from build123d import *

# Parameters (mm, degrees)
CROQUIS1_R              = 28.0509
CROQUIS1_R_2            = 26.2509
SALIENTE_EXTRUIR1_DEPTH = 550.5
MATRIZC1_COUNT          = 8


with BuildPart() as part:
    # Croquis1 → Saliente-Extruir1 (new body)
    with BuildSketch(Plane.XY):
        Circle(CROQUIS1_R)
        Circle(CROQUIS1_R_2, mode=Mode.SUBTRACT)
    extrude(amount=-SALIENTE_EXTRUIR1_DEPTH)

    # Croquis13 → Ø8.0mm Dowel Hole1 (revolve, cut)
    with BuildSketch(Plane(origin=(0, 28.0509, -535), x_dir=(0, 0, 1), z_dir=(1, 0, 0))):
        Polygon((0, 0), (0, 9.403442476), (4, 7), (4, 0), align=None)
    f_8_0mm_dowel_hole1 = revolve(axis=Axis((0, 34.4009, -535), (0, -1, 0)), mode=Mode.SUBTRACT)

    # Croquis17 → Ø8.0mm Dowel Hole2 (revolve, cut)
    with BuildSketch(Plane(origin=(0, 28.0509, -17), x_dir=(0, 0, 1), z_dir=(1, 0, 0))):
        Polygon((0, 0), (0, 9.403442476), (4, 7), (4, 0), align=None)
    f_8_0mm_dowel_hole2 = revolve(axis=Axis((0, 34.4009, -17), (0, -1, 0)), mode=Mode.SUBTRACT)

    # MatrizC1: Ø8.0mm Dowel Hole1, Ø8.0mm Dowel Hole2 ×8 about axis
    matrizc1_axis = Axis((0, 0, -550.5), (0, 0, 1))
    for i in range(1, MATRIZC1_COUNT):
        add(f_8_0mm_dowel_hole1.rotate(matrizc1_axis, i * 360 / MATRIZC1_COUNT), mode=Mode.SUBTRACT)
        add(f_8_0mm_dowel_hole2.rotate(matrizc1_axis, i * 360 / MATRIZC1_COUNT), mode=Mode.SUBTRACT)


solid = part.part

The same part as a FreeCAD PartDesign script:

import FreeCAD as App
import Part
import Sketcher
from FreeCAD import Vector
Q = App.Units.Quantity


def add_polygon(sketch, points):
    """Adds a closed chain of lines whose ends are joined by coincident constraints."""
    first, n = sketch.GeometryCount, len(points)
    for a, b in zip(points, points[1:] + points[:1]):
        sketch.addGeometry(Part.LineSegment(App.Vector(*a, 0), App.Vector(*b, 0)), False)
    for i in range(n):
        sketch.addConstraint(Sketcher.Constraint("Coincident", first + i, 2, first + (i + 1) % n, 1))

doc = App.newDocument("Part")
params = doc.addObject("Spreadsheet::Sheet", "Params")
for row, (alias, value) in enumerate([
    ("pad1_length", "550.5 mm"),
    ("sketch2_width", "7 mm"),
    ("sketch2_height", "4 mm"),
    ("groove_angle", "360 deg"),
    ("sketch3_width", "7 mm"),
    ("sketch3_height", "4 mm"),
    ("groove2_angle", "360 deg"),
], start=1):
    params.set(f"A{row}", alias)
    params.set(f"B{row}", "=" + value)
    params.setAlias(f"B{row}", alias)

body = doc.addObject("PartDesign::Body", "Body")

# Sketch on XY plane
sketch1 = doc.addObject("Sketcher::SketchObject", "Sketch")
body.addObject(sketch1)
sketch1.AttachmentSupport = (doc.XY_Plane, [""])
sketch1.MapMode = "FlatFace"
sketch1.addGeometry([
    Part.Circle(Vector(0, 0, 0), Vector(0, 0, 1), 28),
    Part.Circle(Vector(0, 0, 0), Vector(0, 0, 1), 26),
], False)
sketch1.addConstraint([
    Sketcher.Constraint("Coincident", 0, 3, -1, 1),
    Sketcher.Constraint("Coincident", 1, 3, -1, 1),
    Sketcher.Constraint("Diameter", 0, Q("56.1018 mm")),
    Sketcher.Constraint("Diameter", 1, Q("52.5018 mm")),
])
pad1 = doc.addObject("PartDesign::Pad", "Pad")
body.addObject(pad1)
pad1.Profile = sketch1
pad1.setExpression("Length", "Params.pad1_length")
pad1.Reversed = True

# Sketch on YZ plane
sketch2 = doc.addObject("Sketcher::SketchObject", "Sketch001")
body.addObject(sketch2)
sketch2.AttachmentSupport = (doc.YZ_Plane, [""])
sketch2.MapMode = "FlatFace"
add_polygon(sketch2, [(18.6, -535), (28.1, -535), (28.1, -531), (21.1, -531)])  # lines 0-3
sketch2.addGeometry(Part.LineSegment(Vector(28.1, -535, 0), Vector(18.6, -535, 0)), True)  # axis
sketch2.addConstraint([
    Sketcher.Constraint("Horizontal", 0),
    Sketcher.Constraint("Vertical", 1),
    Sketcher.Constraint("Horizontal", 2),
    Sketcher.Constraint("Horizontal", 4),
    Sketcher.Constraint("Coincident", 4, 1, 0, 2),
    Sketcher.Constraint("Equal", 0, 4),
    Sketcher.Constraint("DistanceX", 2, 2, 2, 1, Q("7 mm")),
    Sketcher.Constraint("DistanceY", 1, 1, 1, 2, Q("4 mm")),
    Sketcher.Constraint("Angle", 3, Q("-121 deg")),
    Sketcher.Constraint("DistanceY", 0, 2, -1, 1, Q("535 mm")),
    Sketcher.Constraint("DistanceX", -1, 1, 0, 2, Q("28.0509 mm")),
])
sketch2.setExpression("Constraints[10]", "Params.sketch2_width")
sketch2.setExpression("Constraints[11]", "Params.sketch2_height")
groove = doc.addObject("PartDesign::Groove", "Groove")
body.addObject(groove)
groove.Profile = sketch2
groove.ReferenceAxis = (sketch2, ["Axis0"])
groove.setExpression("Angle", "Params.groove_angle")

# Sketch on YZ plane
sketch3 = doc.addObject("Sketcher::SketchObject", "Sketch002")
body.addObject(sketch3)
sketch3.AttachmentSupport = (doc.YZ_Plane, [""])
sketch3.MapMode = "FlatFace"
add_polygon(sketch3, [(18.6, -17), (28.1, -17), (28.1, -13), (21.1, -13)])  # lines 0-3
sketch3.addGeometry(Part.LineSegment(Vector(28.1, -17, 0), Vector(18.6, -17, 0)), True)  # axis
sketch3.addConstraint([
    Sketcher.Constraint("Horizontal", 0),
    Sketcher.Constraint("Vertical", 1),
    Sketcher.Constraint("Horizontal", 2),
    Sketcher.Constraint("Horizontal", 4),
    Sketcher.Constraint("Coincident", 4, 1, 0, 2),
    Sketcher.Constraint("Equal", 0, 4),
    Sketcher.Constraint("DistanceX", 2, 2, 2, 1, Q("7 mm")),
    Sketcher.Constraint("DistanceY", 1, 1, 1, 2, Q("4 mm")),
    Sketcher.Constraint("Angle", 3, Q("-121 deg")),
    Sketcher.Constraint("DistanceY", 0, 2, -1, 1, Q("17 mm")),
    Sketcher.Constraint("DistanceX", -1, 1, 0, 2, Q("28.0509 mm")),
])
sketch3.setExpression("Constraints[10]", "Params.sketch3_width")
sketch3.setExpression("Constraints[11]", "Params.sketch3_height")
groove2 = doc.addObject("PartDesign::Groove", "Groove001")
body.addObject(groove2)
groove2.Profile = sketch3
groove2.ReferenceAxis = (sketch3, ["Axis0"])
groove2.setExpression("Angle", "Params.groove2_angle")
doc.recompute()

polarpattern = doc.addObject("PartDesign::PolarPattern", "PolarPattern")
body.addObject(polarpattern)
polarpattern.Originals = [groove, groove2]
polarpattern.Axis = (doc.Z_Axis, [""])
polarpattern.Angle = 360
polarpattern.Occurrences = 8
body.Tip = polarpattern

doc.recompute()
